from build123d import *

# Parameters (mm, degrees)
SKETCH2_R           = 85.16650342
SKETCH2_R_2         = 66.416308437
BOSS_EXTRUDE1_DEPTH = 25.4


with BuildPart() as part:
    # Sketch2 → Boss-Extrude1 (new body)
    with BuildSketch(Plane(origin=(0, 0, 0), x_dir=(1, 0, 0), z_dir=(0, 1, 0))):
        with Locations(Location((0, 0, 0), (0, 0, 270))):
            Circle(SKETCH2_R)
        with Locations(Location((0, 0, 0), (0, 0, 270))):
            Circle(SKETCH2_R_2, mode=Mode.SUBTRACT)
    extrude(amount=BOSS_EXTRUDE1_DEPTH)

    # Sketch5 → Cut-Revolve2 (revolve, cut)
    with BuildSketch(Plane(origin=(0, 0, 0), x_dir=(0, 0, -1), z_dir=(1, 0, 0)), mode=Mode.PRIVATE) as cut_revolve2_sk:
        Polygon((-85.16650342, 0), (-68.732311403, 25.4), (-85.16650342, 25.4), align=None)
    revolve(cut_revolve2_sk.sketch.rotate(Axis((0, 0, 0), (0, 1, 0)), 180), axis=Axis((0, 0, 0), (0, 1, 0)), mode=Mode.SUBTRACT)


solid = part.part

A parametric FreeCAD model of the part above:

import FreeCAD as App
import Part
import Sketcher
from FreeCAD import Vector
Q = App.Units.Quantity


def add_polygon(sketch, points):
    """Adds a closed chain of lines whose ends are joined by coincident constraints."""
    first, n = sketch.GeometryCount, len(points)
    for a, b in zip(points, points[1:] + points[:1]):
        sketch.addGeometry(Part.LineSegment(App.Vector(*a, 0), App.Vector(*b, 0)), False)
    for i in range(n):
        sketch.addConstraint(Sketcher.Constraint("Coincident", first + i, 2, first + (i + 1) % n, 1))

doc = App.newDocument("Part")
body = doc.addObject("PartDesign::Body", "Body")

sketch1 = body.newObject("Sketcher::SketchObject", "Sketch")
sketch1.AttachmentSupport = (doc.getObject("XZ_Plane"), [""])
sketch1.MapMode = "FlatFace"
sketch1.addGeometry([
    Part.Circle(Vector(0, 0, 0), Vector(0, 0, 1), 85),
    Part.Circle(Vector(0, 0, 0), Vector(0, 0, 1), 66),
], False)
sketch1.addConstraint([
    Sketcher.Constraint("Coincident", 0, 3, -1, 1),
    Sketcher.Constraint("Coincident", 1, 3, -1, 1),
    Sketcher.Constraint("Diameter", 0, Q("170.333007 mm")),
    Sketcher.Constraint("Diameter", 1, Q("132.832617 mm")),
])
pad1 = body.newObject("PartDesign::Pad", "Pad")
pad1.Profile = sketch1
pad1.Length = Q("1 in")
pad1.Reversed = True

sketch2 = body.newObject("Sketcher::SketchObject", "Sketch001")
sketch2.AttachmentSupport = (doc.getObject("YZ_Plane"), [""])
sketch2.MapMode = "FlatFace"
add_polygon(sketch2, [(0, 85), (25, 69), (25, 85)])
sketch2.addConstraint([
    Sketcher.Constraint("Vertical", 1),
    Sketcher.Constraint("Horizontal", 2),
    Sketcher.Constraint("PointOnObject", 2, 2, -2),
    Sketcher.Constraint("DistanceX", 2, 2, 2, 1, Q("1 in")),
    Sketcher.Constraint("DistanceY", 1, 1, 1, 2, Q("16.434192 mm")),
    Sketcher.Constraint("DistanceY", -1, 1, 0, 2, Q("68.732311 mm")),
])
groove = body.newObject("PartDesign::Groove", "Groove")
groove.Profile = sketch2
groove.ReferenceAxis = (sketch2, ["H_Axis"])
groove.Angle = 360

doc.recompute()
